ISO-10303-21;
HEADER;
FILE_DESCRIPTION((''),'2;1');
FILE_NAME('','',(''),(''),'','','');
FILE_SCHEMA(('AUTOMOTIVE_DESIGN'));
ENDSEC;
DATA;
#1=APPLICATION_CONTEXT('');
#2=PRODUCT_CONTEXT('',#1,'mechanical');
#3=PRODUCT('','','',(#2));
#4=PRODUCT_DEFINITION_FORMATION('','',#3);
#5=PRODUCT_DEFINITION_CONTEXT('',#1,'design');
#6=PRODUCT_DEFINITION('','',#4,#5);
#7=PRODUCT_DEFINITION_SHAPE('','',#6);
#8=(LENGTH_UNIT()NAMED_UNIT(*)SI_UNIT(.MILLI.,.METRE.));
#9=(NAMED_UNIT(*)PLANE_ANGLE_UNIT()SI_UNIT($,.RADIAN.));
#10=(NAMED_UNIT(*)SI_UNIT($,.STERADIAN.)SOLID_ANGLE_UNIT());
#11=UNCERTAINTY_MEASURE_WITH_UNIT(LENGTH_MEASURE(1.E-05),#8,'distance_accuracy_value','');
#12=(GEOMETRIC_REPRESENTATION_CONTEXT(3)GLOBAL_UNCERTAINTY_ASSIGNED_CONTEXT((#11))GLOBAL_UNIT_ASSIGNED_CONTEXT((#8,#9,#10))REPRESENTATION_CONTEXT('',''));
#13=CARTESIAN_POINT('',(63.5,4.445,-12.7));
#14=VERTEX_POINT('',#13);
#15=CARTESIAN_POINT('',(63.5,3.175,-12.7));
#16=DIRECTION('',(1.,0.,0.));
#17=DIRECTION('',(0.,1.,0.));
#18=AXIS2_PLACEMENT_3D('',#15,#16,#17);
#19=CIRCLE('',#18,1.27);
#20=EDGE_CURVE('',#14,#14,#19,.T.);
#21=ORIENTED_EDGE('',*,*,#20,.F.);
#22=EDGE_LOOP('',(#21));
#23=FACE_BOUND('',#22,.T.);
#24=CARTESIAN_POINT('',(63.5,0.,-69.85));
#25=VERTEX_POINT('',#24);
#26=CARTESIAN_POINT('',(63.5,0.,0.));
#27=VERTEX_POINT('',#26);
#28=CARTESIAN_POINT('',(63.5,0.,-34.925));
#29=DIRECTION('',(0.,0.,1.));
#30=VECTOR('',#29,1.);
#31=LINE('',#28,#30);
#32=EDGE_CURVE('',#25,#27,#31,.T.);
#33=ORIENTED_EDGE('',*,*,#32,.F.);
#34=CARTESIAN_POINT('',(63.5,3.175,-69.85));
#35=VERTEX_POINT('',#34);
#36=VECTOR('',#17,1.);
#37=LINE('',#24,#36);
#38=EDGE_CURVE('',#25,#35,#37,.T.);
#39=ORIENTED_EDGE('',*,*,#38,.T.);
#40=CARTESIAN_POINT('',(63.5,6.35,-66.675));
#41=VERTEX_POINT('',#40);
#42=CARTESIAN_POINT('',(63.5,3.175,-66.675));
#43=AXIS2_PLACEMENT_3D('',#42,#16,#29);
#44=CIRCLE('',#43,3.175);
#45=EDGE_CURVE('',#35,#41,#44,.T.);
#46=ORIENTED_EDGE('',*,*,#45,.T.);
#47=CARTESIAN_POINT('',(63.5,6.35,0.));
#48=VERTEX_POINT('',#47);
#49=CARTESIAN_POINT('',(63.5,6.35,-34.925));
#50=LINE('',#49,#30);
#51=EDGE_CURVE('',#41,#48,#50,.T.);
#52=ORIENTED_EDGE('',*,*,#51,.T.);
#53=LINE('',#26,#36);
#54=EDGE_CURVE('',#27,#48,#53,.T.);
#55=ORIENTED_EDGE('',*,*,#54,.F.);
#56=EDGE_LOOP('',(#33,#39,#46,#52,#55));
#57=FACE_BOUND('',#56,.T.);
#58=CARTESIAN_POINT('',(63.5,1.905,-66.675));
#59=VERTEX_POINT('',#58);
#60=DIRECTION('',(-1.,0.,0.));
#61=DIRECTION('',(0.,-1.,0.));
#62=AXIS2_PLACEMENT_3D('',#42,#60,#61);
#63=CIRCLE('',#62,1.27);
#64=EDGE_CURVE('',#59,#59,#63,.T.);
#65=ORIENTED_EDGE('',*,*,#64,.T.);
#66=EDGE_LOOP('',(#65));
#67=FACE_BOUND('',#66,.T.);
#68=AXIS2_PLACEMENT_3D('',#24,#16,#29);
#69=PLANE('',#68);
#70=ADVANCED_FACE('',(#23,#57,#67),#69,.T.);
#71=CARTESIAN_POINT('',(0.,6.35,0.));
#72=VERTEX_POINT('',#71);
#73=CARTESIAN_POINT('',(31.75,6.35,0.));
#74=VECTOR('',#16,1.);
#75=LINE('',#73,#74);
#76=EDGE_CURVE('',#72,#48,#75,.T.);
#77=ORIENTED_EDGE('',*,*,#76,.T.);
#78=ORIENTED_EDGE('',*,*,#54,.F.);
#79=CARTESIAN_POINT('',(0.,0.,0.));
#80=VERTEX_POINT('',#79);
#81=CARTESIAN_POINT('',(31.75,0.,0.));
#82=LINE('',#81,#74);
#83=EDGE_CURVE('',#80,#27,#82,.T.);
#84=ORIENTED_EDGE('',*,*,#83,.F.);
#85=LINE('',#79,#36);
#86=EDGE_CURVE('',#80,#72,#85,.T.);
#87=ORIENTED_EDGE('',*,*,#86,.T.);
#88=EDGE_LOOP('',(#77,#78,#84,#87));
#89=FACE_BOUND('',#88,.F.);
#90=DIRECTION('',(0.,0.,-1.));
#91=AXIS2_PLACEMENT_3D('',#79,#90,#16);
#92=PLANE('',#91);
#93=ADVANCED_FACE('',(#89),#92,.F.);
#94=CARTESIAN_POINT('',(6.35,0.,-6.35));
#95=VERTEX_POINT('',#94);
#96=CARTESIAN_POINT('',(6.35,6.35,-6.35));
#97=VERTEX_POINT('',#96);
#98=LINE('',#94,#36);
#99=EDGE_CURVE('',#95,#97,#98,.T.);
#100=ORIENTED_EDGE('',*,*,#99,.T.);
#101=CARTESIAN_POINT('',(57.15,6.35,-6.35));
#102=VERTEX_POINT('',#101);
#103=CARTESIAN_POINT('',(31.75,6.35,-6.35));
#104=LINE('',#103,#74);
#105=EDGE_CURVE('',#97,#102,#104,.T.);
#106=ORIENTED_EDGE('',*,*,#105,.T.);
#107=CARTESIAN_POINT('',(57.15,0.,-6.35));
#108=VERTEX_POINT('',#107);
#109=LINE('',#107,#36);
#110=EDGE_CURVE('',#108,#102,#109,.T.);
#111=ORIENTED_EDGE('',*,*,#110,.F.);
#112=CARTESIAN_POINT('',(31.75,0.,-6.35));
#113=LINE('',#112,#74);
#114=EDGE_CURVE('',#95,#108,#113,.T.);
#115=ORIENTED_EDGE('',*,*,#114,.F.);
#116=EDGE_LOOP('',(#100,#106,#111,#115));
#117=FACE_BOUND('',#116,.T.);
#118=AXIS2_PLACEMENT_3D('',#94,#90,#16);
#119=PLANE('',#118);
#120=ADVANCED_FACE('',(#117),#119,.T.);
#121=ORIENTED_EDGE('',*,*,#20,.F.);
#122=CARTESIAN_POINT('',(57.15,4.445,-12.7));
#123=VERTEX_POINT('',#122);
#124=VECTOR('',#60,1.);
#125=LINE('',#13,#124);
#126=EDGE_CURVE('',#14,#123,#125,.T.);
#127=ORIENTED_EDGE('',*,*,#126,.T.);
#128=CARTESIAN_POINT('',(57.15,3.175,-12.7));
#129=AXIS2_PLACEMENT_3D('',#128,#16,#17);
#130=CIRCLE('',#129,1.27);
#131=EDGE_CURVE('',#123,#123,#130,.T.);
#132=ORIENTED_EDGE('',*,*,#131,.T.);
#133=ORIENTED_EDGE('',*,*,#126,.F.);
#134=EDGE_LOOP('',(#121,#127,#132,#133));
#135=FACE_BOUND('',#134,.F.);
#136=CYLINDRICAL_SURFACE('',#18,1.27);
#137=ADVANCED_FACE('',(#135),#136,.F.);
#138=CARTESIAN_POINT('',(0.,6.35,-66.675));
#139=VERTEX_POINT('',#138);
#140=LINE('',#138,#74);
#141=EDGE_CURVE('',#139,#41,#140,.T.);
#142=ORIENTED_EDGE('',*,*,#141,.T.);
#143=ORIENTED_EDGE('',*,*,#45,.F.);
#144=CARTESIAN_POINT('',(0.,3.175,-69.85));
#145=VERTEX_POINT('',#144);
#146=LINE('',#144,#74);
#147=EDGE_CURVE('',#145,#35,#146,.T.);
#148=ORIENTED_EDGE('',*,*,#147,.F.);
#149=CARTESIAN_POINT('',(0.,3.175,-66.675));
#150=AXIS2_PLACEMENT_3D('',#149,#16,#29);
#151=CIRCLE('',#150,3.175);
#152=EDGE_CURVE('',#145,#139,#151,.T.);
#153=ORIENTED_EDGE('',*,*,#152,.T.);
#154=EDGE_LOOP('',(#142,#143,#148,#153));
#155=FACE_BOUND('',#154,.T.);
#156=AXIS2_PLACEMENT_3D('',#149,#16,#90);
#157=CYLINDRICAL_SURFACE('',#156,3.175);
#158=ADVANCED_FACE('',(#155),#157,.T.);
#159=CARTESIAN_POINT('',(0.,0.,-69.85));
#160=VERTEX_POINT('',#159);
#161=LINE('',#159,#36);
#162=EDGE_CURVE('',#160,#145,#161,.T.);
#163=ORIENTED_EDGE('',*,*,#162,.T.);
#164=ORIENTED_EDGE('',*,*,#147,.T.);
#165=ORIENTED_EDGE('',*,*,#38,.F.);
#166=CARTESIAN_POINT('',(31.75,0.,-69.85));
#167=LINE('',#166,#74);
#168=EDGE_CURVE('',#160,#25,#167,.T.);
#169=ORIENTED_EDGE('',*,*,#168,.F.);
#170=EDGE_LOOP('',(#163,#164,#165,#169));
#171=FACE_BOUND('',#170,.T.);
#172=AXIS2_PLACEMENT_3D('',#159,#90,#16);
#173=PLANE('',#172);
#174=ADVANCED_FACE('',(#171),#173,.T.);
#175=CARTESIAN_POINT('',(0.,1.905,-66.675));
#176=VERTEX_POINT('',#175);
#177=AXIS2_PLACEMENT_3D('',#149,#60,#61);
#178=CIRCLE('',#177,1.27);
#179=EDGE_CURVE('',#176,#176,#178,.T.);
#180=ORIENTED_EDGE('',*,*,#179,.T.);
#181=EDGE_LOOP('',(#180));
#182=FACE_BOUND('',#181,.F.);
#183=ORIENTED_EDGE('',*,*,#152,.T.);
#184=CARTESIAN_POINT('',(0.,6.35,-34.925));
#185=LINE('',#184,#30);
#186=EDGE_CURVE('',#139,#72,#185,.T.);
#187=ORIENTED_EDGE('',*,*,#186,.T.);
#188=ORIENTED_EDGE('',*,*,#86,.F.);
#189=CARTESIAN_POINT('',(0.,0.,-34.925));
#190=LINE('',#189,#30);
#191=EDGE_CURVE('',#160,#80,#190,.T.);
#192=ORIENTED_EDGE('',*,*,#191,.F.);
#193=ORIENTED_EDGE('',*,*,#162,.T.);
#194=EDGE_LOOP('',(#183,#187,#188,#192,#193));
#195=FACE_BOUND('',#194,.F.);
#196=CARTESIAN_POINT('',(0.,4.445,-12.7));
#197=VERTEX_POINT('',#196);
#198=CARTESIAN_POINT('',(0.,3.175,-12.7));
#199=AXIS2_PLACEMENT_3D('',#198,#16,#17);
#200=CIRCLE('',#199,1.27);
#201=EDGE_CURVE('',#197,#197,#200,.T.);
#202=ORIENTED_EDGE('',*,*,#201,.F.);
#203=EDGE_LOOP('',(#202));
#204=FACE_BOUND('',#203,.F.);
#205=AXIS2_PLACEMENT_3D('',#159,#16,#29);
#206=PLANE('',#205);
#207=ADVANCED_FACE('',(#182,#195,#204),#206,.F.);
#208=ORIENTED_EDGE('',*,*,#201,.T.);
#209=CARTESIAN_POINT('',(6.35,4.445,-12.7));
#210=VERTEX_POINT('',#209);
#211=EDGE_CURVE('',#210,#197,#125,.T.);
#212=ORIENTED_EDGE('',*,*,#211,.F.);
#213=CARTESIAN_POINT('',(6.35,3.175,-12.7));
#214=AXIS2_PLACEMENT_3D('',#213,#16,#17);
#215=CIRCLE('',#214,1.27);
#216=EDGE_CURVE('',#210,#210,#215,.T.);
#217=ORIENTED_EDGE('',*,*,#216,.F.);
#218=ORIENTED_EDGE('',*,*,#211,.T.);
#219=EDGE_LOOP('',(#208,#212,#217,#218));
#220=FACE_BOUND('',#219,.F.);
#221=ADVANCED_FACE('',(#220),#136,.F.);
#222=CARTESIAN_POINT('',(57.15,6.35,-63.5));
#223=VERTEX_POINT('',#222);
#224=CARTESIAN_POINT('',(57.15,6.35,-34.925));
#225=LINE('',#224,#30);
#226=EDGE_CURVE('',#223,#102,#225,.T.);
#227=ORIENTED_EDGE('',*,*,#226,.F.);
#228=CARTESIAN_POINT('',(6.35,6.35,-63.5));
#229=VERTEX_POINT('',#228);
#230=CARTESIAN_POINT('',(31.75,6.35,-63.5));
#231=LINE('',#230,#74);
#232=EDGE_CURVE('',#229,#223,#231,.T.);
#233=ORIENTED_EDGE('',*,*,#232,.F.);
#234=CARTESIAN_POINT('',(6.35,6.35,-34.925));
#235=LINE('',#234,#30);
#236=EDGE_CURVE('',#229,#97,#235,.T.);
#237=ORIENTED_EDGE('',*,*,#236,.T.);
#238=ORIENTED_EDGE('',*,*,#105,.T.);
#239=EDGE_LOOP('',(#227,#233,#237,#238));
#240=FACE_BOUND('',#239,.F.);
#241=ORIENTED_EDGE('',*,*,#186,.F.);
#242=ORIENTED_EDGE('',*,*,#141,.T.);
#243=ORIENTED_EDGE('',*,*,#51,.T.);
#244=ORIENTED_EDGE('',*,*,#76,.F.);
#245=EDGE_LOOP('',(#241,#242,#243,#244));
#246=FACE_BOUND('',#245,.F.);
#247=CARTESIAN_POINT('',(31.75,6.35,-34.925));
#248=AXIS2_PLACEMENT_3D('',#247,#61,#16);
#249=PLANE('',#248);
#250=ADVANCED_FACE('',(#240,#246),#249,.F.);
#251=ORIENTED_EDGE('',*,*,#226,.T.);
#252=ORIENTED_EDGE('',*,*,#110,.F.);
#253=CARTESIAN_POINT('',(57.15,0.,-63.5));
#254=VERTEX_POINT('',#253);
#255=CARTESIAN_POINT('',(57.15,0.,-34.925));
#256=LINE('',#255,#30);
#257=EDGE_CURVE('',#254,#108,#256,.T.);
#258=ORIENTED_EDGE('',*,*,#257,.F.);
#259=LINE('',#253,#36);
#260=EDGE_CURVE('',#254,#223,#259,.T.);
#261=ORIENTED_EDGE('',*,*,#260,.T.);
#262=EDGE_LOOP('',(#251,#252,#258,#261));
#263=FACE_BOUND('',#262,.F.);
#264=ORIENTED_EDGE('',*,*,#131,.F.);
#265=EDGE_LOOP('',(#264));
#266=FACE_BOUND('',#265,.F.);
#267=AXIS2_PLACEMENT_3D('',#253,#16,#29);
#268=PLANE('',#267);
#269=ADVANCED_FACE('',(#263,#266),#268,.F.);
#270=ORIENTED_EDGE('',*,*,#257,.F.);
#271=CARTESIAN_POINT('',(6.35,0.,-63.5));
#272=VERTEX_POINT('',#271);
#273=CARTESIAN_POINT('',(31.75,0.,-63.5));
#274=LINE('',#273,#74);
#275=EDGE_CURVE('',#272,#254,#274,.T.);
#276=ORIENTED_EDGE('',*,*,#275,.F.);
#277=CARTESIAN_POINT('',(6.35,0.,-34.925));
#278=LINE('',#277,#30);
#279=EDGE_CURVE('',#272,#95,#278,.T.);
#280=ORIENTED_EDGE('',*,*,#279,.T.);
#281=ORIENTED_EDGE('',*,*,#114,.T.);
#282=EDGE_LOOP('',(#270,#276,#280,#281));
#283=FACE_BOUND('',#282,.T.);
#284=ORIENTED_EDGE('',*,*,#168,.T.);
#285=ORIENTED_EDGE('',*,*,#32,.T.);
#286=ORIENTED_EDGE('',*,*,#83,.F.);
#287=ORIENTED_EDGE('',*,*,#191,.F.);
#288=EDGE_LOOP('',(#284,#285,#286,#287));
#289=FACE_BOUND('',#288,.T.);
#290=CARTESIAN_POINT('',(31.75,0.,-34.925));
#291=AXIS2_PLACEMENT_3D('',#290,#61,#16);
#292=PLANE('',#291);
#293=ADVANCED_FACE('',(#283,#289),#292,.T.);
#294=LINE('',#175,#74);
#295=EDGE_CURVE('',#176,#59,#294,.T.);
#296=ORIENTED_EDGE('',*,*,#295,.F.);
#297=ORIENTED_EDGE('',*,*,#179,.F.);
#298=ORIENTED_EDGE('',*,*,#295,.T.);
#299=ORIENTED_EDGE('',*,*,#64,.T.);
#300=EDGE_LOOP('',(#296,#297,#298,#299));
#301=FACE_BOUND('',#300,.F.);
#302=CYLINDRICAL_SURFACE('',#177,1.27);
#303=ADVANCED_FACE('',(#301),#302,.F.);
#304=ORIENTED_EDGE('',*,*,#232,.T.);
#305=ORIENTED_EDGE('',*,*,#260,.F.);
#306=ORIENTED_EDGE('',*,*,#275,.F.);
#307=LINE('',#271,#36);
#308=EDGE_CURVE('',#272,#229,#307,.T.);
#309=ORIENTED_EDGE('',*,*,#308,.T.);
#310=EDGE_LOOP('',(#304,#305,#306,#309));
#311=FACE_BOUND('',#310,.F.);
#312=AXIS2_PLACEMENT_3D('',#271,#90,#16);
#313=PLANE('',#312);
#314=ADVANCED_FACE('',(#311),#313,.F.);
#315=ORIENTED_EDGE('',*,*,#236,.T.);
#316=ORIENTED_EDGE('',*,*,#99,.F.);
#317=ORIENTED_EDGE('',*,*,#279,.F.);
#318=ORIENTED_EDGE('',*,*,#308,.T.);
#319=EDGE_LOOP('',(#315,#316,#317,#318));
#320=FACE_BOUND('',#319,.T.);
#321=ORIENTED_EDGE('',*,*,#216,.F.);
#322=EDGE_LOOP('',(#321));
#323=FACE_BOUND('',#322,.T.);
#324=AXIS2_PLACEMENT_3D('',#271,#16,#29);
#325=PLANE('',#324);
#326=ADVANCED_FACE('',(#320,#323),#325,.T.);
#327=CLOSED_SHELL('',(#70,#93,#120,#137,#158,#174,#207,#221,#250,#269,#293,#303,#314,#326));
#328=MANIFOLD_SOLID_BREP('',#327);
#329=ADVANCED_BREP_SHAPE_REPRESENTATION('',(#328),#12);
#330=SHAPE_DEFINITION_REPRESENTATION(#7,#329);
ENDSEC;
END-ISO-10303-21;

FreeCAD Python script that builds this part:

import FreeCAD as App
import Part
import Sketcher

V = App.Vector
Q = App.Units.Quantity


def edges_at(feature, points):
    """Names of the edges that pass closest to the given points."""
    edges = feature.Shape.Edges
    near = lambda p: min(range(len(edges)), key=lambda i: edges[i].distToShape(Part.Vertex(*p))[0])
    return sorted({f"Edge{near(p) + 1}" for p in points})


def add_polygon(sketch, points):
    """Adds a closed chain of lines whose ends are joined by coincident constraints."""
    first, n = sketch.GeometryCount, len(points)
    for a, b in zip(points, points[1:] + points[:1]):
        sketch.addGeometry(Part.LineSegment(App.Vector(*a, 0), App.Vector(*b, 0)), False)
    for i in range(n):
        sketch.addConstraint(Sketcher.Constraint("Coincident", first + i, 2, first + (i + 1) % n, 1))

doc = App.newDocument("Part")
body = doc.addObject("PartDesign::Body", "Body")

# Sketch on XZ plane
sketch1 = body.newObject("Sketcher::SketchObject", "Sketch")
sketch1.AttachmentSupport = (doc.getObject("XZ_Plane"), [""])
sketch1.MapMode = "FlatFace"
add_polygon(sketch1, [(0, 0), (0, -70), (64, -70), (64, 0)])  # lines 0-3
add_polygon(sketch1, [(57, -64), (6, -64), (6, -6), (57, -6)])  # lines 4-7
sketch1.addConstraint(Sketcher.Constraint("Vertical", 0))
sketch1.addConstraint(Sketcher.Constraint("Horizontal", 1))
sketch1.addConstraint(Sketcher.Constraint("Vertical", 2))
sketch1.addConstraint(Sketcher.Constraint("Horizontal", 3))
sketch1.addConstraint(Sketcher.Constraint("Horizontal", 4))
sketch1.addConstraint(Sketcher.Constraint("Vertical", 5))
sketch1.addConstraint(Sketcher.Constraint("Horizontal", 6))
sketch1.addConstraint(Sketcher.Constraint("Vertical", 7))
sketch1.addConstraint(Sketcher.Constraint("Coincident", 3, 2, -1, 1))
sketch1.addConstraint(Sketcher.Constraint("DistanceX", 4, 2, 4, 1, Q("2 in")))
sketch1.addConstraint(Sketcher.Constraint("DistanceX", 1, 1, 1, 2, Q("2.5 in")))
sketch1.addConstraint(Sketcher.Constraint("DistanceY", 0, 2, 0, 1, Q("2.75 in")))
sketch1.addConstraint(Sketcher.Constraint("DistanceY", 5, 1, 5, 2, Q("2.25 in")))
sketch1.addConstraint(Sketcher.Constraint("DistanceY", 4, 2, -1, 1, Q("2.5 in")))
sketch1.addConstraint(Sketcher.Constraint("DistanceX", -1, 1, 4, 2, Q("0.25 in")))
pad1 = body.newObject("PartDesign::Pad", "Pad")
pad1.Profile = sketch1
pad1.Length = Q("0.25 in")
pad1.Reversed = True

# Sketch on YZ plane
sketch2 = body.newObject("Sketcher::SketchObject", "Sketch001")
sketch2.AttachmentSupport = (doc.getObject("YZ_Plane"), [""])
sketch2.MapMode = "FlatFace"
sketch2.addGeometry(Part.Circle(V(3.2, -66.7, 0), V(0, 0, 1), 1.3), False)
sketch2.addConstraint(Sketcher.Constraint("Diameter", 0, Q("0.1 in")))
sketch2.addConstraint(Sketcher.Constraint("DistanceX", -1, 1, 0, 3, Q("0.125 in")))
sketch2.addConstraint(Sketcher.Constraint("DistanceY", 0, 3, -1, 1, Q("2.625 in")))
pocket1 = body.newObject("PartDesign::Pocket", "Pocket")
pocket1.Profile = sketch2
pocket1.Type = "ThroughAll"
pocket1.Reversed = True
doc.recompute()

fillet = body.newObject("PartDesign::Fillet", "Fillet")
fillet.Base = (pocket1, edges_at(pocket1, [(31.75, 6.35, -69.85)]))
fillet.Radius = Q("0.125 in")

# Sketch on YZ plane
sketch3 = body.newObject("Sketcher::SketchObject", "Sketch002")
sketch3.AttachmentSupport = (doc.getObject("YZ_Plane"), [""])
sketch3.MapMode = "FlatFace"
sketch3.AttachmentOffset = App.Placement(V(0, 0, 2.5 * 25.4), App.Rotation())
sketch3.addGeometry(Part.Circle(V(3.2, -12.7, 0), V(0, 0, 1), 1.3), False)
sketch3.addConstraint(Sketcher.Constraint("Diameter", 0, Q("0.1 in")))
sketch3.addConstraint(Sketcher.Constraint("DistanceY", 0, 3, -1, 1, Q("0.5 in")))
sketch3.addConstraint(Sketcher.Constraint("DistanceX", -1, 1, 0, 3, Q("0.125 in")))
pocket2 = body.newObject("PartDesign::Pocket", "Pocket001")
pocket2.Profile = sketch3
pocket2.Type = "ThroughAll"

doc.recompute()
